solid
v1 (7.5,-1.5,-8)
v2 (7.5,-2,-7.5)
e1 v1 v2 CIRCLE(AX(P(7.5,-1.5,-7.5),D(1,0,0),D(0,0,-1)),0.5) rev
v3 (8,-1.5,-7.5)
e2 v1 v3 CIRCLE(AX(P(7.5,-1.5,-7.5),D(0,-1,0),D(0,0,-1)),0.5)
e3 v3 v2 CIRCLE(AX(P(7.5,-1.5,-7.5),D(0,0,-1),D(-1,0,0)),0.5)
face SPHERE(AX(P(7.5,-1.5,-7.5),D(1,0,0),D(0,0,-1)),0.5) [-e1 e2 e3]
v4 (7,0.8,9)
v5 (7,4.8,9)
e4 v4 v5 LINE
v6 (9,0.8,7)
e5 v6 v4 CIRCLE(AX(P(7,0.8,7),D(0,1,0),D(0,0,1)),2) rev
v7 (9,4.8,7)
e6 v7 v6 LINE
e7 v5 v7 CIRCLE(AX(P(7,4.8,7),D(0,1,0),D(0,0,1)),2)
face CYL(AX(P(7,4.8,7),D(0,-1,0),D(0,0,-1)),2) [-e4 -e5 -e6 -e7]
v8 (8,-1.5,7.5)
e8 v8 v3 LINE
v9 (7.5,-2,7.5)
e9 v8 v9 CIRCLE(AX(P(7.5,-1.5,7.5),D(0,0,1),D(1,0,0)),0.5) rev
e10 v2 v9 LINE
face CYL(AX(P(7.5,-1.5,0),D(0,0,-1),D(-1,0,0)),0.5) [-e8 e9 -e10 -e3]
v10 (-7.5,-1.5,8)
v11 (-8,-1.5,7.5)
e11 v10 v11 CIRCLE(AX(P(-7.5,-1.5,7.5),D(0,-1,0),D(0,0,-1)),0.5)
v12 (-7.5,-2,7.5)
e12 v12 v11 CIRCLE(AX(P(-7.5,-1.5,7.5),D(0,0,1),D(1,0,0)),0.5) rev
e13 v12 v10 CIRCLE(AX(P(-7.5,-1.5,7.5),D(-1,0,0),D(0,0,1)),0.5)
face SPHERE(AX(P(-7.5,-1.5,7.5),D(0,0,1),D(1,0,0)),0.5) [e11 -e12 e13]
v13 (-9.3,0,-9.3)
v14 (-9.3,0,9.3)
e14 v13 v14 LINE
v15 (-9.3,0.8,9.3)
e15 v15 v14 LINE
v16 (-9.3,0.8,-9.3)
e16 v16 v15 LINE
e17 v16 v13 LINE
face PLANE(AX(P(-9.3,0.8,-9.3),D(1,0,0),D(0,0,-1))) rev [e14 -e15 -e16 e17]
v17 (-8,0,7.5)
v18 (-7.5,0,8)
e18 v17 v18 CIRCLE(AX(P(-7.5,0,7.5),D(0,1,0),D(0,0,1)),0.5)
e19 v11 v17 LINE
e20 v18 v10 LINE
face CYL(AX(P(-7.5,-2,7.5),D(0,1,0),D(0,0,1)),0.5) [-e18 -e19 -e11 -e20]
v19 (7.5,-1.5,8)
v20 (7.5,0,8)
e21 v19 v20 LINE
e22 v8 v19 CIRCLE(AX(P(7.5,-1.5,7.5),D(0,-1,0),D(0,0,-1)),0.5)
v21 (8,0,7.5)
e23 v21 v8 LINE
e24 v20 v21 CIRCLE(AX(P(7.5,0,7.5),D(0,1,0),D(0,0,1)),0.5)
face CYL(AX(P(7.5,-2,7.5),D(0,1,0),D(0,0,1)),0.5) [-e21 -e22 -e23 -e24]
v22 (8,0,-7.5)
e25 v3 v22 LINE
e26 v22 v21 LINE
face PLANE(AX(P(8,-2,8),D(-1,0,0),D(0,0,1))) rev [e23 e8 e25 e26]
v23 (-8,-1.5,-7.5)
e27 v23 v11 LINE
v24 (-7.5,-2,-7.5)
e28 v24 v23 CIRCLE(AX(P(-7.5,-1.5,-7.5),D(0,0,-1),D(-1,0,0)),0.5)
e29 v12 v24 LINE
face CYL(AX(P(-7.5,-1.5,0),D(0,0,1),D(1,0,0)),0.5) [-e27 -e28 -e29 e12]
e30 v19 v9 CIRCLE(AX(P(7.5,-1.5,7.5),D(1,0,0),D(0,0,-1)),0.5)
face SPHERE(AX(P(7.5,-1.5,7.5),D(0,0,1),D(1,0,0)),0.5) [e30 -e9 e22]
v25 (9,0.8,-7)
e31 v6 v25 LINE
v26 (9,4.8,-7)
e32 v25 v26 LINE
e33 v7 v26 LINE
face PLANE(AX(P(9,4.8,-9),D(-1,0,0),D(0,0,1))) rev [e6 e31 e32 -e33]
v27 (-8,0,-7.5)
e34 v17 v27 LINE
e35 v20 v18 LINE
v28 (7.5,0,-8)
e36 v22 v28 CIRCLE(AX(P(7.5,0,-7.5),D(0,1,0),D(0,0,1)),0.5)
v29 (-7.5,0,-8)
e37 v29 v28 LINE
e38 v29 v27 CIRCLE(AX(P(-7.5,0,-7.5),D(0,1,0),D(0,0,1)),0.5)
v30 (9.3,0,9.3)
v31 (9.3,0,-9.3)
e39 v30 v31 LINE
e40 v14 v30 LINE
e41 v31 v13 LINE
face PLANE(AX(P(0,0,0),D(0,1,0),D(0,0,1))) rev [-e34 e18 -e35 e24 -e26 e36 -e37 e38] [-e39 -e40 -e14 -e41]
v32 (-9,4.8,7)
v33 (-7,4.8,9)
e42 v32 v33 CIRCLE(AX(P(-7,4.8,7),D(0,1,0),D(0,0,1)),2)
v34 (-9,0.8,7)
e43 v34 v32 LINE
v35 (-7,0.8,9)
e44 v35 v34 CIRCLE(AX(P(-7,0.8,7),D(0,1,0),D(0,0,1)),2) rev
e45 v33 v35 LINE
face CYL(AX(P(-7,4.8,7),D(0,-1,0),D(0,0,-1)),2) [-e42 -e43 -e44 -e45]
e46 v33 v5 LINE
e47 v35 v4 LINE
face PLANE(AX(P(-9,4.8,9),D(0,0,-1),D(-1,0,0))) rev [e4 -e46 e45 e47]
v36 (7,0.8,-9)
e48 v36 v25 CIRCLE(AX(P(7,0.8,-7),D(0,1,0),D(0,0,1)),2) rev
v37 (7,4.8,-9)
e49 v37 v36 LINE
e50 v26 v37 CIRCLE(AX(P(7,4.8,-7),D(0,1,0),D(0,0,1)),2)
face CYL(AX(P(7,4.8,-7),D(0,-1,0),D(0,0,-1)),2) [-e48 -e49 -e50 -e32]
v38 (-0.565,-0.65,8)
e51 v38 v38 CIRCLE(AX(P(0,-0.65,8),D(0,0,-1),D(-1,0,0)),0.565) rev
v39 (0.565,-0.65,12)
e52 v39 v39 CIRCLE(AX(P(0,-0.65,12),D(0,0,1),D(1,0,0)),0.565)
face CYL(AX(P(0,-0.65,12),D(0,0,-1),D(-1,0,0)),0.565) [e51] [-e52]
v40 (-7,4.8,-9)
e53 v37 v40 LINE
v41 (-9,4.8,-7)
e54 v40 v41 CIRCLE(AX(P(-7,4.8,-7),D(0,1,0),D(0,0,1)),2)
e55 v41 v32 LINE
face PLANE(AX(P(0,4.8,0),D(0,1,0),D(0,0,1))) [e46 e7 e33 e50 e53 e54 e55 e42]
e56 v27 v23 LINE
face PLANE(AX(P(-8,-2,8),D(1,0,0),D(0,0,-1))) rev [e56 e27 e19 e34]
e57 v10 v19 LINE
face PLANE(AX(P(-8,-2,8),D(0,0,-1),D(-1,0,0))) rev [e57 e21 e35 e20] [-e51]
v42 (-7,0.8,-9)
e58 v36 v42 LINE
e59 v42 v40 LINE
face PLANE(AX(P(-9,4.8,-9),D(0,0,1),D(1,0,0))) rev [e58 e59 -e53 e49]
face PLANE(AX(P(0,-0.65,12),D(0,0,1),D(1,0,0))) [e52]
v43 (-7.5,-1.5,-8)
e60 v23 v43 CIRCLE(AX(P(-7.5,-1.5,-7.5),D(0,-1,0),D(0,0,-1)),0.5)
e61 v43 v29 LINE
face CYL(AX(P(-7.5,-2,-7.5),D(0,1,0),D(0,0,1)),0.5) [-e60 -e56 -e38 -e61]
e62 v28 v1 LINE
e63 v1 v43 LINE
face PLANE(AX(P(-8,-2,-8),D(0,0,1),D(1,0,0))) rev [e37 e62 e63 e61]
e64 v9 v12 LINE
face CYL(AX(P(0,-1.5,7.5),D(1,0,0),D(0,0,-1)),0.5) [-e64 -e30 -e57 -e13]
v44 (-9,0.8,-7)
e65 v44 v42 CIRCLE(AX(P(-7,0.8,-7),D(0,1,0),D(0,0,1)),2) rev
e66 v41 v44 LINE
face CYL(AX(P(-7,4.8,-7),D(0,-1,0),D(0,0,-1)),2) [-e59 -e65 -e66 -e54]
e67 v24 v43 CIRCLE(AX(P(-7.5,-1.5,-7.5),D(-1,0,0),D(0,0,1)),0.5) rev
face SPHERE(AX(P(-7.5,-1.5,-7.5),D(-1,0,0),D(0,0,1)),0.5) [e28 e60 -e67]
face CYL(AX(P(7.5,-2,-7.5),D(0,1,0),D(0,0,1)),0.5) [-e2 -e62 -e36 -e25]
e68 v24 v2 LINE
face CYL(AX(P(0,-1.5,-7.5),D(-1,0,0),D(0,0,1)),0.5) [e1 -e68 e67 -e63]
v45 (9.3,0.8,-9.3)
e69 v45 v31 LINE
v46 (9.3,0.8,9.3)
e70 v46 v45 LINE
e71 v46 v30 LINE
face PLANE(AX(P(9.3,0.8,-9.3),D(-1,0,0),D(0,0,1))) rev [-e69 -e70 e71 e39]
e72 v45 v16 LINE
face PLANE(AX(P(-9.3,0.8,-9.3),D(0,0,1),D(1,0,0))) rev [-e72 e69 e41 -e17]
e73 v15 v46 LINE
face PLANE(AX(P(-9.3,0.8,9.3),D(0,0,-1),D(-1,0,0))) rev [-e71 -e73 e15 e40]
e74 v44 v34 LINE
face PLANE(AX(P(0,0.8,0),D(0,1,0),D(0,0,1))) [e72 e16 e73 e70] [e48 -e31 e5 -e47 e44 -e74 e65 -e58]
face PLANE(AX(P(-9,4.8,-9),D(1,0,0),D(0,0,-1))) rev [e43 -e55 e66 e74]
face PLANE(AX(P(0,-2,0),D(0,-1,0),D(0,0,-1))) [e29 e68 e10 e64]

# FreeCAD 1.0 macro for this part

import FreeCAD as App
import Part
import Sketcher
Q = App.Units.Quantity


def edges_at(feature, points):
    """Names of the edges that pass closest to the given points."""
    edges = feature.Shape.Edges
    near = lambda p: min(range(len(edges)), key=lambda i: edges[i].distToShape(Part.Vertex(*p))[0])
    return sorted({f"Edge{near(p) + 1}" for p in points})


def add_polygon(sketch, points):
    """Adds a closed chain of lines whose ends are joined by coincident constraints."""
    first, n = sketch.GeometryCount, len(points)
    for a, b in zip(points, points[1:] + points[:1]):
        sketch.addGeometry(Part.LineSegment(App.Vector(*a, 0), App.Vector(*b, 0)), False)
    for i in range(n):
        sketch.addConstraint(Sketcher.Constraint("Coincident", first + i, 2, first + (i + 1) % n, 1))

doc = App.newDocument("Part")
body = doc.addObject("PartDesign::Body", "Body")

sketch1 = doc.addObject("Sketcher::SketchObject", "Sketch")
body.addObject(sketch1)
sketch1.AttachmentSupport = (doc.XZ_Plane, [""])
sketch1.MapMode = "FlatFace"
add_polygon(sketch1, [(-9.3, -9.3), (-9.3, 9.3), (9.3, 9.3), (9.3, -9.3)])
sketch1.addConstraint(Sketcher.Constraint("Vertical", 0))
sketch1.addConstraint(Sketcher.Constraint("Horizontal", 1))
sketch1.addConstraint(Sketcher.Constraint("Vertical", 2))
sketch1.addConstraint(Sketcher.Constraint("Horizontal", 3))
sketch1.addConstraint(Sketcher.Constraint("Symmetric", 0, 2, 2, 2, -1, 1))
sketch1.addConstraint(Sketcher.Constraint("Equal", 3, 0))
sketch1.addConstraint(Sketcher.Constraint("DistanceX", 1, 1, 1, 2, Q("18.6 mm")))
pad1 = doc.addObject("PartDesign::Pad", "Pad")
body.addObject(pad1)
pad1.Profile = sketch1
pad1.Length = 0.8
pad1.Reversed = True

sketch2 = doc.addObject("Sketcher::SketchObject", "Sketch001")
body.addObject(sketch2)
sketch2.AttachmentSupport = (doc.XZ_Plane, [""])
sketch2.MapMode = "FlatFace"
sketch2.AttachmentOffset = App.Placement(App.Vector(0, 0, -0.8), App.Rotation())
add_polygon(sketch2, [(-9, -9), (-9, 9), (9, 9), (9, -9)])
sketch2.addConstraint(Sketcher.Constraint("Vertical", 0))
sketch2.addConstraint(Sketcher.Constraint("Horizontal", 1))
sketch2.addConstraint(Sketcher.Constraint("Vertical", 2))
sketch2.addConstraint(Sketcher.Constraint("Horizontal", 3))
sketch2.addConstraint(Sketcher.Constraint("Symmetric", 0, 2, 2, 2, -1, 1))
sketch2.addConstraint(Sketcher.Constraint("Equal", 3, 0))
sketch2.addConstraint(Sketcher.Constraint("DistanceX", 1, 1, 1, 2, Q("18 mm")))
pad2 = doc.addObject("PartDesign::Pad", "Pad001")
body.addObject(pad2)
pad2.Profile = sketch2
pad2.Length = 4
pad2.Reversed = True

sketch3 = doc.addObject("Sketcher::SketchObject", "Sketch002")
body.addObject(sketch3)
sketch3.AttachmentSupport = (doc.XZ_Plane, [""])
sketch3.MapMode = "FlatFace"
add_polygon(sketch3, [(-8, 8), (-8, -8), (8, -8), (8, 8)])
sketch3.addConstraint(Sketcher.Constraint("Vertical", 0))
sketch3.addConstraint(Sketcher.Constraint("Horizontal", 1))
sketch3.addConstraint(Sketcher.Constraint("Vertical", 2))
sketch3.addConstraint(Sketcher.Constraint("Horizontal", 3))
sketch3.addConstraint(Sketcher.Constraint("Symmetric", 0, 2, 2, 2, -1, 1))
sketch3.addConstraint(Sketcher.Constraint("Equal", 3, 0))
sketch3.addConstraint(Sketcher.Constraint("DistanceX", 1, 1, 1, 2, Q("16 mm")))
pad3 = doc.addObject("PartDesign::Pad", "Pad002")
body.addObject(pad3)
pad3.Profile = sketch3
pad3.Length = 2
doc.recompute()

fillet = doc.addObject("PartDesign::Fillet", "Fillet")
body.addObject(fillet)
fillet.Base = (pad3, edges_at(pad3, [
    (9, 2.8, 9),
    (9, 2.8, -9),
    (-9, 2.8, -9),
    (-9, 2.8, 9),
]))
fillet.Radius = 2
doc.recompute()

fillet2 = doc.addObject("PartDesign::Fillet", "Fillet001")
body.addObject(fillet2)
fillet2.Base = (fillet, edges_at(fillet, [
    (8, -1, -8),
    (8, -1, 8),
    (-8, -1, 8),
    (-8, -1, -8),
    (8, -2, 0),
    (0, -2, 8),
    (-8, -2, 0),
    (0, -2, -8),
]))
fillet2.Radius = 0.5

sketch4 = doc.addObject("Sketcher::SketchObject", "Sketch003")
body.addObject(sketch4)
sketch4.AttachmentSupport = (doc.XY_Plane, [""])
sketch4.MapMode = "FlatFace"
sketch4.addGeometry(Part.Circle(App.Vector(0, -0.65, 0), App.Vector(0, 0, 1), 0.565), False)
sketch4.addConstraint(Sketcher.Constraint("PointOnObject", 0, 3, -2))
sketch4.addConstraint(Sketcher.Constraint("Diameter", 0, Q("1.13 mm")))
sketch4.addConstraint(Sketcher.Constraint("DistanceY", 0, 3, -1, 1, Q("0.65 mm")))
pad4 = doc.addObject("PartDesign::Pad", "Pad003")
body.addObject(pad4)
pad4.Profile = sketch4
pad4.Length = 12

doc.recompute()
